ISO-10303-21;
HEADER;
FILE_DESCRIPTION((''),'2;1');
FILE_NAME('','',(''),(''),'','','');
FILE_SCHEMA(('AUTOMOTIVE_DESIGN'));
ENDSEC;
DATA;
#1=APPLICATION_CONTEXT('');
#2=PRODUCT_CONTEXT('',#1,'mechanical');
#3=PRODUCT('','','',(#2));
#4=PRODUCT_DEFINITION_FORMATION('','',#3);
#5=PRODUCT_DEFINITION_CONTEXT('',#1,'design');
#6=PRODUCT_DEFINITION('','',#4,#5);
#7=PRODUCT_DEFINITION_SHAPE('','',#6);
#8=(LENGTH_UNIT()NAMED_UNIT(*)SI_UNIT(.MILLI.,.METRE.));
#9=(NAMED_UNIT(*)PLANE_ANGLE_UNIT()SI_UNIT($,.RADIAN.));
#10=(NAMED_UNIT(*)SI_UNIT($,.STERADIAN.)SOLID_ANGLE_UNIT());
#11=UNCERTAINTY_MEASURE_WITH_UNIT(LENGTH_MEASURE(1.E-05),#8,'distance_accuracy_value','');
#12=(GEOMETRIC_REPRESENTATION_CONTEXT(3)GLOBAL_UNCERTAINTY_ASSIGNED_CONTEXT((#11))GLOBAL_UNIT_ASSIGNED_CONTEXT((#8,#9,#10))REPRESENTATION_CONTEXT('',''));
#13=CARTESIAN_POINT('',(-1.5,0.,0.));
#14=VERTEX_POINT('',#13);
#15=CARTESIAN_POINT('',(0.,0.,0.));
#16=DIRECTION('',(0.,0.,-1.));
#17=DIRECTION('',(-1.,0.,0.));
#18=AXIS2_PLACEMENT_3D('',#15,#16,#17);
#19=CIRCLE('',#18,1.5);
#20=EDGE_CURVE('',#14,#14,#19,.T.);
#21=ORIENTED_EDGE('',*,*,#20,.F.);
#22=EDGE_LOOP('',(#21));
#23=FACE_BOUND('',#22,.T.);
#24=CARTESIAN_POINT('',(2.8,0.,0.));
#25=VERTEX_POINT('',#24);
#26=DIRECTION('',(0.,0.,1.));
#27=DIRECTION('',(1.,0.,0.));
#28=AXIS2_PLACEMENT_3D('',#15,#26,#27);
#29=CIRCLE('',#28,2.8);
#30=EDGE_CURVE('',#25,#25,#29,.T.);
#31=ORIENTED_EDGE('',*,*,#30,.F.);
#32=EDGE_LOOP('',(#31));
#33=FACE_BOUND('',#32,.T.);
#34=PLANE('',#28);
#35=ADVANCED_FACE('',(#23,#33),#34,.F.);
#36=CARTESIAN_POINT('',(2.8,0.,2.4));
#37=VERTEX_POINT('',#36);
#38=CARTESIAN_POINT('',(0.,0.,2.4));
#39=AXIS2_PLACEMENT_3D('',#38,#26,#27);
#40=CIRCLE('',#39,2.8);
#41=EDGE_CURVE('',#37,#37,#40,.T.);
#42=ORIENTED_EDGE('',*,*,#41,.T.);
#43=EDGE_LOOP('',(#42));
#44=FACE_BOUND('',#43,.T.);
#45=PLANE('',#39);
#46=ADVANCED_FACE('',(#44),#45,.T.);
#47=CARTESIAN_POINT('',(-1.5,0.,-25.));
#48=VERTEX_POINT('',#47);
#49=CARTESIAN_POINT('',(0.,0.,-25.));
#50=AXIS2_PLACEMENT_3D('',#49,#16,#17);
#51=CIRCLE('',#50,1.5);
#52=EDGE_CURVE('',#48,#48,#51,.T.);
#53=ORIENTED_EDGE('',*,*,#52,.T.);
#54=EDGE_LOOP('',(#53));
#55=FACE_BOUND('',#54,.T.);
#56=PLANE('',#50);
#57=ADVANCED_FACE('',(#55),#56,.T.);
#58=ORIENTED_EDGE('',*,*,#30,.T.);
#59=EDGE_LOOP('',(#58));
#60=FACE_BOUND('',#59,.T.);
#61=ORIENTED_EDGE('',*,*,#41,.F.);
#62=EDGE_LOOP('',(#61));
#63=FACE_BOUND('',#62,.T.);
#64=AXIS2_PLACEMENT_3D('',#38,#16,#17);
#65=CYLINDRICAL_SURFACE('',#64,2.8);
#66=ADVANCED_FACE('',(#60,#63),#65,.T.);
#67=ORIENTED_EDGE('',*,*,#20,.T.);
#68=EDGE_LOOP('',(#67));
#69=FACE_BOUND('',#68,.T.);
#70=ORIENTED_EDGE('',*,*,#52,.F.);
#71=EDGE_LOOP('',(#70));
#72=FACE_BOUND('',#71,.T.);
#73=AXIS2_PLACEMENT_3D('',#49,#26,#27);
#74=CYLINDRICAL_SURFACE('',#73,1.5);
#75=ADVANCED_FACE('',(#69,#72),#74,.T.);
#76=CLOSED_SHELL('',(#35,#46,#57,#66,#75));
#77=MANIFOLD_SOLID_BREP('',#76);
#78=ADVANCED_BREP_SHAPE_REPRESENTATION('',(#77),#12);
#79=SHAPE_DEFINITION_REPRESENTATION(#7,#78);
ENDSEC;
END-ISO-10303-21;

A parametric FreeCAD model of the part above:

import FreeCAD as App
import Part
import Sketcher
from FreeCAD import Vector

doc = App.newDocument("Part")
body = doc.addObject("PartDesign::Body", "Body")

# Sketch on XY plane
sketch1 = body.newObject("Sketcher::SketchObject", "Sketch")
sketch1.AttachmentSupport = (doc.getObject("XY_Plane"), [""])
sketch1.MapMode = "FlatFace"
sketch1.addGeometry(Part.Circle(Vector(0, 0, 0), Vector(0, 0, 1), 2.8), False)
sketch1.addConstraint(Sketcher.Constraint("Coincident", 0, 3, -1, 1))
sketch1.addConstraint(Sketcher.Constraint("Diameter", 0, 5.6))
pad1 = body.newObject("PartDesign::Pad", "Pad")
pad1.Profile = sketch1
pad1.Length = 2.4

# Sketch on XY plane
sketch2 = body.newObject("Sketcher::SketchObject", "Sketch001")
sketch2.AttachmentSupport = (doc.getObject("XY_Plane"), [""])
sketch2.MapMode = "FlatFace"
sketch2.addGeometry(Part.Circle(Vector(0, 0, 0), Vector(0, 0, 1), 1.5), False)
sketch2.addConstraint(Sketcher.Constraint("Coincident", 0, 3, -1, 1))
sketch2.addConstraint(Sketcher.Constraint("Diameter", 0, 3.0))
pad2 = body.newObject("PartDesign::Pad", "Pad001")
pad2.Profile = sketch2
pad2.Length = 25
pad2.Reversed = True

doc.recompute()
